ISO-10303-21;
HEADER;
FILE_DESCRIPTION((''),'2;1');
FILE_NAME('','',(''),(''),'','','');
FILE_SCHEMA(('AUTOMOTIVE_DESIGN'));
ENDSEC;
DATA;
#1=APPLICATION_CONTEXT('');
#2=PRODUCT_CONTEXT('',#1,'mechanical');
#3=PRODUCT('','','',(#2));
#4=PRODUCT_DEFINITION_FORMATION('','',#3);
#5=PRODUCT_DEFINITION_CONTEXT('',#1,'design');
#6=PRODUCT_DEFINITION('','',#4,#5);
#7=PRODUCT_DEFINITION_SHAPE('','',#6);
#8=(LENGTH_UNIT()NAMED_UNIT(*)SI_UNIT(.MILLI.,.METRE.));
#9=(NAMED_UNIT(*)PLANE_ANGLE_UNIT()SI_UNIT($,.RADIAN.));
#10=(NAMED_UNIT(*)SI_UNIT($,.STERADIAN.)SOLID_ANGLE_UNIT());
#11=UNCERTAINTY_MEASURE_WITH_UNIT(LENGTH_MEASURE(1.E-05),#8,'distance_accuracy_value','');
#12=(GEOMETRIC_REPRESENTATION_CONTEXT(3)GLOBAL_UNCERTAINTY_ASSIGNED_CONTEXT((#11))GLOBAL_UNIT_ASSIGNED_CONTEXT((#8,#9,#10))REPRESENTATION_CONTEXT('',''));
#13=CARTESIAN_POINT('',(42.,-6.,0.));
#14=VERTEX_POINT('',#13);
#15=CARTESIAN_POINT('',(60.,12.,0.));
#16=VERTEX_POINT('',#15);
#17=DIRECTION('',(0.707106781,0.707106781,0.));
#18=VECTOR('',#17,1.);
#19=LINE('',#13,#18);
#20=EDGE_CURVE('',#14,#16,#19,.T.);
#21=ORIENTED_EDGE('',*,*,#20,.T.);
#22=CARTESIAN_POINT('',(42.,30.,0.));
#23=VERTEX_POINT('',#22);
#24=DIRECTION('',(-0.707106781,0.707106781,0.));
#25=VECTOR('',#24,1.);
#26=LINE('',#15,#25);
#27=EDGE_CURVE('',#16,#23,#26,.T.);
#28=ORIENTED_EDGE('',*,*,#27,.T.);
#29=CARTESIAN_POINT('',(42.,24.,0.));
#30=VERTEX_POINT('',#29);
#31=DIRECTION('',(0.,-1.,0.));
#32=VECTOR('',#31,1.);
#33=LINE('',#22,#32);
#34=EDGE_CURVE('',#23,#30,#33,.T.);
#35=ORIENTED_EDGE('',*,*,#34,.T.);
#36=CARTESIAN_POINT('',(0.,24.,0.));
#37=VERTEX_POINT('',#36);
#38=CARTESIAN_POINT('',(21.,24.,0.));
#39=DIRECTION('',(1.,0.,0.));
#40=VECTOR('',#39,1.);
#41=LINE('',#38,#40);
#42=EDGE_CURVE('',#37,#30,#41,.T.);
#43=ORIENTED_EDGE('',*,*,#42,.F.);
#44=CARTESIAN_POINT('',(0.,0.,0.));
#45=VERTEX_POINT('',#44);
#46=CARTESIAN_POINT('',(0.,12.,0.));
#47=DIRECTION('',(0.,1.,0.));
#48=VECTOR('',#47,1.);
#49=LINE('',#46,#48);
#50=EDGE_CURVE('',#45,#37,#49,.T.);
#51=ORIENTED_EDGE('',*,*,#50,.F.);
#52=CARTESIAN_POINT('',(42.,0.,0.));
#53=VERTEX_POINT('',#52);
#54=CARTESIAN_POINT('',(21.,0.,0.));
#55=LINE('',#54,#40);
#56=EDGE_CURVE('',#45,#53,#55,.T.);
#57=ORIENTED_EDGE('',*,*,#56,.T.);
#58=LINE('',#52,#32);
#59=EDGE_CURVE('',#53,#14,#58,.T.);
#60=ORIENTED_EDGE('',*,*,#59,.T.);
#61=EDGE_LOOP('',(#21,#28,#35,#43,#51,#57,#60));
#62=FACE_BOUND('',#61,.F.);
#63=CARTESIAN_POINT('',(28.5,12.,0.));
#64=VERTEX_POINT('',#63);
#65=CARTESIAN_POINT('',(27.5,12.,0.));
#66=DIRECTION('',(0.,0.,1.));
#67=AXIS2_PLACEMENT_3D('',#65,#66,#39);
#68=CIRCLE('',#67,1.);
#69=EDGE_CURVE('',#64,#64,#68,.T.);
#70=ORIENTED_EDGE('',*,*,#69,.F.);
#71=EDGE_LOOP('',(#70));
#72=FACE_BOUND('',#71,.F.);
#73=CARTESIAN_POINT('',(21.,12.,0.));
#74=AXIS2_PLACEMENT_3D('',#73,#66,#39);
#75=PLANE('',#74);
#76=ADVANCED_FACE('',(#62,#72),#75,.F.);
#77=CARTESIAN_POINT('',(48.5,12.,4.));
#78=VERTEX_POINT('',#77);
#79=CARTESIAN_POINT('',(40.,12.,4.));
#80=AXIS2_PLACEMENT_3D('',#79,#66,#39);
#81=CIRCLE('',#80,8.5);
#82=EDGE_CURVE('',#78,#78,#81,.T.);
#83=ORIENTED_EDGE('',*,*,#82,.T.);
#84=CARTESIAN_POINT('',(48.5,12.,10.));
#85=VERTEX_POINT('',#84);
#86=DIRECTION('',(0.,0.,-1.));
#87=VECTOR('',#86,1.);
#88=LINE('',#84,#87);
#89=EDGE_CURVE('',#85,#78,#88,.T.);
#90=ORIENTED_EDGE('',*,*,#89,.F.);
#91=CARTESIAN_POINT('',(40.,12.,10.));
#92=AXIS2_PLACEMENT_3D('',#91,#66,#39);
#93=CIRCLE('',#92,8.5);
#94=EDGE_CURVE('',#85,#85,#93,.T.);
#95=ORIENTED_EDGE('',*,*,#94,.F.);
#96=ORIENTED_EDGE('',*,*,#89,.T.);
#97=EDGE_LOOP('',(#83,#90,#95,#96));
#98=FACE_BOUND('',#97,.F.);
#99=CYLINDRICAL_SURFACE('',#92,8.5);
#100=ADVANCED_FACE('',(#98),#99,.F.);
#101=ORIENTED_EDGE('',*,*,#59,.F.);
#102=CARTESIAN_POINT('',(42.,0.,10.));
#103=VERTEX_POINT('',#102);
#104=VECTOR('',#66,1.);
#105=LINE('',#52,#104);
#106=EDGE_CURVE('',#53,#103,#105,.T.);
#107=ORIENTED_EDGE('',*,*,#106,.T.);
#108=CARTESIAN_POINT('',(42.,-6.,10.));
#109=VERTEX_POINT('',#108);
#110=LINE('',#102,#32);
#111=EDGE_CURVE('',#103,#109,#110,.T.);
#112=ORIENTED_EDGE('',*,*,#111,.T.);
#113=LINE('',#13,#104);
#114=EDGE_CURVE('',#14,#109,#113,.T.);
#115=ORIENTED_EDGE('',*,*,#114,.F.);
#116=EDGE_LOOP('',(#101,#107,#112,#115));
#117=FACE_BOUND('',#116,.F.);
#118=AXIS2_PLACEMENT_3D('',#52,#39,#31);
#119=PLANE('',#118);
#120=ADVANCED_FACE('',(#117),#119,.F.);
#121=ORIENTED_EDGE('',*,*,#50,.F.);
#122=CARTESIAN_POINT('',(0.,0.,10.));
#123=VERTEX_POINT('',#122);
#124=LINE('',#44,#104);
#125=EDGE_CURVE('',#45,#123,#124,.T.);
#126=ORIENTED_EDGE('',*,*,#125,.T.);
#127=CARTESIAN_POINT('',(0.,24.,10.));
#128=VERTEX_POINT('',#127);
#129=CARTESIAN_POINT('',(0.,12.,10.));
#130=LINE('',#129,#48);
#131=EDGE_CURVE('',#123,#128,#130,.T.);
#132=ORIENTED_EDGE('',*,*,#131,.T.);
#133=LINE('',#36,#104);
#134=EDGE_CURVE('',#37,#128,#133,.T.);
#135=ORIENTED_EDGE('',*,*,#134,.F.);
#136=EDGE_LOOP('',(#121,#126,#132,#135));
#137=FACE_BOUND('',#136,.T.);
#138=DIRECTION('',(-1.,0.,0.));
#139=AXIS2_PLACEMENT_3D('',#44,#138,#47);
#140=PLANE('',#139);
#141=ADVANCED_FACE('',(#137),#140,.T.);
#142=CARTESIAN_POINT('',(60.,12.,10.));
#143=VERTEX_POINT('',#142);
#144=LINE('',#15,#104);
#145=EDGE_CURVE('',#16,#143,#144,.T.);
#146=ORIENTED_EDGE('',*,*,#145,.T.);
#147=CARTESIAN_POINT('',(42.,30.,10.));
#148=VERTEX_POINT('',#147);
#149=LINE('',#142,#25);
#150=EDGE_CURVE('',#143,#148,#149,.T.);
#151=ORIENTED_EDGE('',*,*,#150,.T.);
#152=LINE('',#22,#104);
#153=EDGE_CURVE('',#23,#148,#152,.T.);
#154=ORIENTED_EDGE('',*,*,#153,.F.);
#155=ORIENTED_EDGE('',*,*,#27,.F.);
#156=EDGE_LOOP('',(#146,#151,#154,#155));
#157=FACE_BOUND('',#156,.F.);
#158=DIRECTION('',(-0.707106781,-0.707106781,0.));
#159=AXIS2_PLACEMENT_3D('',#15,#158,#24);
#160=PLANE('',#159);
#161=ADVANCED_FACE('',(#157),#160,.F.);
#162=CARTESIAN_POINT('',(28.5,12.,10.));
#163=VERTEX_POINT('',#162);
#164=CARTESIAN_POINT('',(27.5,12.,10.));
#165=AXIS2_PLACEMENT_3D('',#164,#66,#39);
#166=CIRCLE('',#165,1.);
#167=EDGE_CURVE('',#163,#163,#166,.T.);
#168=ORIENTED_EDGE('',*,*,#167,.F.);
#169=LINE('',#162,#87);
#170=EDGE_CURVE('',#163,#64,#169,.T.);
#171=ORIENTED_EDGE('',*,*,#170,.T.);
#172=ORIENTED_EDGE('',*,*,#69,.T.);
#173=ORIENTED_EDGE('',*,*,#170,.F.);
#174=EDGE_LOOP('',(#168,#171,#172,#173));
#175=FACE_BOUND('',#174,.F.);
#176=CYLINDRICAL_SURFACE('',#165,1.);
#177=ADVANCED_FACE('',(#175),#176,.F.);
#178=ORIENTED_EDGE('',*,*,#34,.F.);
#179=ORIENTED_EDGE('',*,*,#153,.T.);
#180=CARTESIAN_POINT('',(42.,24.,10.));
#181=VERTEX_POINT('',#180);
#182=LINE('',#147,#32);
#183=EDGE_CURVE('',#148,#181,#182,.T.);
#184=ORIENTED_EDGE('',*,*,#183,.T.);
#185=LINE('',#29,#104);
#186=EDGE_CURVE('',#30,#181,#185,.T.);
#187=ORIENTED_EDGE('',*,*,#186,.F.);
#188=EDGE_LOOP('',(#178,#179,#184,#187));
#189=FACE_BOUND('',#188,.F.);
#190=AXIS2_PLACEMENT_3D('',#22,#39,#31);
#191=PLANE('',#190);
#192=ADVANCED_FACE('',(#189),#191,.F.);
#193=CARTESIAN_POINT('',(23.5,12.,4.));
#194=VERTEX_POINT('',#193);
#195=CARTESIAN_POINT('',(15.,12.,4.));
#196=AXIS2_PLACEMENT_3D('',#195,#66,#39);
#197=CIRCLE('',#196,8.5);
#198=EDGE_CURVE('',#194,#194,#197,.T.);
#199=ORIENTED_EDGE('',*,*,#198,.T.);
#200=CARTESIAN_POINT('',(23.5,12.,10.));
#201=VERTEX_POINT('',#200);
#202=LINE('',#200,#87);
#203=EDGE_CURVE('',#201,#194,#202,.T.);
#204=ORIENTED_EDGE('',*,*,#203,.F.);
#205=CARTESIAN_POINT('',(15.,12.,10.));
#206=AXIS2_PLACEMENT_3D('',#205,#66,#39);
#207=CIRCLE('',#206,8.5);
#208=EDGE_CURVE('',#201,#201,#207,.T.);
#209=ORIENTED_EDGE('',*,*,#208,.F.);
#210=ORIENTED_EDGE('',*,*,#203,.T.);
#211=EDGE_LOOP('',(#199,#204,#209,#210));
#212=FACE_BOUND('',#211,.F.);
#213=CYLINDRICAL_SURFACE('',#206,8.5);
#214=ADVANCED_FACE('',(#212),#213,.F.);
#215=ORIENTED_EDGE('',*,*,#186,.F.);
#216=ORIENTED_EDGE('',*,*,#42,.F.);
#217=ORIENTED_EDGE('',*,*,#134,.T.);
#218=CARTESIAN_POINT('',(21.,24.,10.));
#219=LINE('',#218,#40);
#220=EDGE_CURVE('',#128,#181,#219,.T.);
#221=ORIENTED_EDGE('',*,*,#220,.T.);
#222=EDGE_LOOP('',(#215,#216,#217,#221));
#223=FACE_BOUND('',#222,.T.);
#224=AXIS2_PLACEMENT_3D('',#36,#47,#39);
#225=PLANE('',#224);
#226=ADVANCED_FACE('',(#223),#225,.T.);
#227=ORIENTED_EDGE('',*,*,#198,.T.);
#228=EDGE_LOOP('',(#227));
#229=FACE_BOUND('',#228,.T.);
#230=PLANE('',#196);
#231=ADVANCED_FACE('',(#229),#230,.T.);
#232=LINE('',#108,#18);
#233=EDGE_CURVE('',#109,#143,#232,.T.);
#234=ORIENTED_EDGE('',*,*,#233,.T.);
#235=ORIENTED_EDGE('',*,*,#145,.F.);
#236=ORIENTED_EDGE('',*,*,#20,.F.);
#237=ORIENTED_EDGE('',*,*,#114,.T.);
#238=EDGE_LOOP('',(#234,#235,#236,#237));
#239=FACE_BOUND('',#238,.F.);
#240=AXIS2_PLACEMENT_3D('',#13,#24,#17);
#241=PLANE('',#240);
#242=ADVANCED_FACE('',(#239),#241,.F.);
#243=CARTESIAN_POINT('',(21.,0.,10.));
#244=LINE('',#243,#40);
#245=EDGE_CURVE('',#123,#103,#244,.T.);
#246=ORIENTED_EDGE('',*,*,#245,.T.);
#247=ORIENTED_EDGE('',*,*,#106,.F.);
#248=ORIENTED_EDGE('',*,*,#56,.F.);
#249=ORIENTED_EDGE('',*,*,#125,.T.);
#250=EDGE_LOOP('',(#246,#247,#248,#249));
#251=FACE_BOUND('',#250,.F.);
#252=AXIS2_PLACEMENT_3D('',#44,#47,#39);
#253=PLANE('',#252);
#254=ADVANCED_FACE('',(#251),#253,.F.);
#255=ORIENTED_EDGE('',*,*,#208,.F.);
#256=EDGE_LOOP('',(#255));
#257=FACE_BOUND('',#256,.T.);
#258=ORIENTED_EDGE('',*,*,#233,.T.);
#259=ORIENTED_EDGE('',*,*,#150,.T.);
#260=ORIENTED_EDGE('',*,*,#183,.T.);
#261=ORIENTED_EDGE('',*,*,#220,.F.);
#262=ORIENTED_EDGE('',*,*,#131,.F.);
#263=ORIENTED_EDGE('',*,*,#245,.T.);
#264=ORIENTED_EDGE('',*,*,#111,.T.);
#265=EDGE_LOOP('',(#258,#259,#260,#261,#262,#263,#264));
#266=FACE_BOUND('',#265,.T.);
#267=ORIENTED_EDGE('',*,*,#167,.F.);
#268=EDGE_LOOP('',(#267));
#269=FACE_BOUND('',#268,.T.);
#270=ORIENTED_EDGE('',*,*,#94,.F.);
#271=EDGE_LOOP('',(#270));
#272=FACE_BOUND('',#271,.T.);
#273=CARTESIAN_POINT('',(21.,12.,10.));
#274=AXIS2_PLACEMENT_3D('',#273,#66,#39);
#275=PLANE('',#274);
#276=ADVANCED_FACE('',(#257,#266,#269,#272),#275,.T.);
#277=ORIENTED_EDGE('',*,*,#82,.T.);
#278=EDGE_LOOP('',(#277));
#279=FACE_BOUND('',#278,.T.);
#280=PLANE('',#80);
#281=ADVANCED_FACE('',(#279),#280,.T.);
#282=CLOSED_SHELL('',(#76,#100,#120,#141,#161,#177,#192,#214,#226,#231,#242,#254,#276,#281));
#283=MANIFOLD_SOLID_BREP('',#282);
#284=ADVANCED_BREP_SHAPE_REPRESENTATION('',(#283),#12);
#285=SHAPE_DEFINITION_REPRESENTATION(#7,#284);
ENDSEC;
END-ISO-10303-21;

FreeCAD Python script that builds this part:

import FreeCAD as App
import Part
import Sketcher

V = App.Vector

doc = App.newDocument("Part")
body = doc.addObject("PartDesign::Body", "Body")

# Sketch on XY plane
sketch1 = body.newObject("Sketcher::SketchObject", "Sketch")
sketch1.AttachmentSupport = (doc.getObject("XY_Plane"), [""])
sketch1.MapMode = "FlatFace"
sketch1.addGeometry(Part.LineSegment(V(0, 24, 0), V(0, 0, 0)), False)
sketch1.addGeometry(Part.LineSegment(V(0, 0, 0), V(42, 0, 0)), False)
sketch1.addGeometry(Part.LineSegment(V(42, 0, 0), V(42, -6, 0)), False)
sketch1.addGeometry(Part.LineSegment(V(42, -6, 0), V(60, 12, 0)), False)
sketch1.addGeometry(Part.LineSegment(V(60, 12, 0), V(42, 30, 0)), False)
sketch1.addGeometry(Part.LineSegment(V(42, 30, 0), V(42, 24, 0)), False)
sketch1.addGeometry(Part.LineSegment(V(42, 24, 0), V(0, 24, 0)), False)
sketch1.addConstraint(Sketcher.Constraint("Coincident", 0, 2, 1, 1))
sketch1.addConstraint(Sketcher.Constraint("Coincident", 1, 2, 2, 1))
sketch1.addConstraint(Sketcher.Constraint("Coincident", 2, 2, 3, 1))
sketch1.addConstraint(Sketcher.Constraint("Coincident", 3, 2, 4, 1))
sketch1.addConstraint(Sketcher.Constraint("Coincident", 4, 2, 5, 1))
sketch1.addConstraint(Sketcher.Constraint("Coincident", 5, 2, 6, 1))
sketch1.addConstraint(Sketcher.Constraint("Coincident", 6, 2, 0, 1))
sketch1.addConstraint(Sketcher.Constraint("Vertical", 0))
sketch1.addConstraint(Sketcher.Constraint("Horizontal", 1))
sketch1.addConstraint(Sketcher.Constraint("Vertical", 2))
sketch1.addConstraint(Sketcher.Constraint("Vertical", 5))
sketch1.addConstraint(Sketcher.Constraint("Horizontal", 6))
sketch1.addConstraint(Sketcher.Constraint("Coincident", 0, 2, -1, 1))
sketch1.addConstraint(Sketcher.Constraint("Perpendicular", 3, 4))
sketch1.addConstraint(Sketcher.Constraint("Vertical", 2, 2, 4, 2))
sketch1.addConstraint(Sketcher.Constraint("Equal", 2, 5))
sketch1.addConstraint(Sketcher.Constraint("Equal", 3, 4))
sketch1.addConstraint(Sketcher.Constraint("DistanceX", 1, 1, 1, 2, 42.0))
sketch1.addConstraint(Sketcher.Constraint("DistanceY", 0, 2, 0, 1, 24.0))
sketch1.addConstraint(Sketcher.Constraint("DistanceY", 2, 2, 2, 1, 6.0))
pad1 = body.newObject("PartDesign::Pad", "Pad")
pad1.Profile = sketch1
pad1.Length = 10

# Sketch on XY plane
sketch2 = body.newObject("Sketcher::SketchObject", "Sketch001")
sketch2.AttachmentSupport = (doc.getObject("XY_Plane"), [""])
sketch2.MapMode = "FlatFace"
sketch2.AttachmentOffset = App.Placement(V(0, 0, 10), App.Rotation())
sketch2.addGeometry(Part.Circle(V(15, 12, 0), V(0, 0, 1), 8.5), False)
sketch2.addGeometry(Part.Circle(V(40, 12, 0), V(0, 0, 1), 8.5), False)
sketch2.addConstraint(Sketcher.Constraint("Equal", 0, 1))
sketch2.addConstraint(Sketcher.Constraint("Horizontal", 0, 3, 1, 3))
sketch2.addConstraint(Sketcher.Constraint("Diameter", 0, 17.0))
sketch2.addConstraint(Sketcher.Constraint("DistanceX", -1, 1, 0, 3, 15.0))
sketch2.addConstraint(Sketcher.Constraint("DistanceY", -1, 1, 0, 3, 12.0))
sketch2.addConstraint(Sketcher.Constraint("DistanceX", -1, 1, 1, 3, 40.0))
pocket1 = body.newObject("PartDesign::Pocket", "Pocket")
pocket1.Profile = sketch2
pocket1.Length = 6

# Sketch on XY plane
sketch3 = body.newObject("Sketcher::SketchObject", "Sketch002")
sketch3.AttachmentSupport = (doc.getObject("XY_Plane"), [""])
sketch3.MapMode = "FlatFace"
sketch3.AttachmentOffset = App.Placement(V(0, 0, 10), App.Rotation())
sketch3.addGeometry(Part.Circle(V(27.5, 12, 0), V(0, 0, 1), 1), False)
sketch3.addConstraint(Sketcher.Constraint("Diameter", 0, 2.0))
sketch3.addConstraint(Sketcher.Constraint("DistanceY", -1, 1, 0, 3, 12.0))
sketch3.addConstraint(Sketcher.Constraint("DistanceX", -1, 1, 0, 3, 27.5))
pocket2 = body.newObject("PartDesign::Pocket", "Pocket001")
pocket2.Profile = sketch3
pocket2.Length = 25

doc.recompute()
